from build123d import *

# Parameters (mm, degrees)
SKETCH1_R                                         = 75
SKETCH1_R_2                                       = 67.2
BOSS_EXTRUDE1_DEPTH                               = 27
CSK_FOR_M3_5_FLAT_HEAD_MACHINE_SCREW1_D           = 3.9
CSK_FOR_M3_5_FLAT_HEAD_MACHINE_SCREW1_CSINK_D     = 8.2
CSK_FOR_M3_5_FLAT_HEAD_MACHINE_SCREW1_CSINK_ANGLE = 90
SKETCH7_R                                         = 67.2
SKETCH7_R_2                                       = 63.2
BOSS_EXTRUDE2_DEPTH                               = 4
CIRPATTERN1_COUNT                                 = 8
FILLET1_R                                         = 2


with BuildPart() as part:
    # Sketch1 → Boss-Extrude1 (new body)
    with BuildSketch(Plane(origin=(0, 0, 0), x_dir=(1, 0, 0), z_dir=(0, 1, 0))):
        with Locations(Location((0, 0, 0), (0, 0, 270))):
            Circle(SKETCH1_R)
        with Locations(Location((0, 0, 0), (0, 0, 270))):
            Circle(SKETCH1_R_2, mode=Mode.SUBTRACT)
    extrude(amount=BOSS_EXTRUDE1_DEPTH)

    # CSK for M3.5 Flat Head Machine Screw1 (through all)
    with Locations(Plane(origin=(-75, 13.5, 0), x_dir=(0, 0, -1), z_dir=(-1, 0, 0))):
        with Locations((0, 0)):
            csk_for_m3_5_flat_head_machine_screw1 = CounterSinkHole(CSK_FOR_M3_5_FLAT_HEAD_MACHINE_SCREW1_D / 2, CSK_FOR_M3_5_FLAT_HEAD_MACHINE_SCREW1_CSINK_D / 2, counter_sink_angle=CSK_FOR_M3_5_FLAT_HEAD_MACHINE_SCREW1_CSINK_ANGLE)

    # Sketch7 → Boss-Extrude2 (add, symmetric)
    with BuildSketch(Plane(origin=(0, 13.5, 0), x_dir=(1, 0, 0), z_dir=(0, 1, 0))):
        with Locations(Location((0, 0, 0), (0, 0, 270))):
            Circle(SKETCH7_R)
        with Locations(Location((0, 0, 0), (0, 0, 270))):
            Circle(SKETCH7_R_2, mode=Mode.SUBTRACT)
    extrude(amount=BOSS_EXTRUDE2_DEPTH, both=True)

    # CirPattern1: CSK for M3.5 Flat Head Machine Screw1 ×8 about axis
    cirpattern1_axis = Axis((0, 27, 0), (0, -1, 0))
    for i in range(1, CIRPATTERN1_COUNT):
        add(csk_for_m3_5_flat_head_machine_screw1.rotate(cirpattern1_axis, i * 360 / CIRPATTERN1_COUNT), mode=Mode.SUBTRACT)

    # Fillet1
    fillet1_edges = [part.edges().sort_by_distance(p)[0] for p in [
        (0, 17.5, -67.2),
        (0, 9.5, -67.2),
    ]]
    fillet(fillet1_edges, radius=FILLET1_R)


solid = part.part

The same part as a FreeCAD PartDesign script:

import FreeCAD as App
import Part
import Sketcher
Q = App.Units.Quantity


def edges_at(feature, points):
    """Names of the edges that pass closest to the given points."""
    edges = feature.Shape.Edges
    near = lambda p: min(range(len(edges)), key=lambda i: edges[i].distToShape(Part.Vertex(*p))[0])
    return sorted({f"Edge{near(p) + 1}" for p in points})

doc = App.newDocument("Part")
body = doc.addObject("PartDesign::Body", "Body")

# Sketch on XZ plane
sketch1 = doc.addObject("Sketcher::SketchObject", "Sketch")
body.addObject(sketch1)
sketch1.AttachmentSupport = (doc.XZ_Plane, [""])
sketch1.MapMode = "FlatFace"
sketch1.addGeometry([
    Part.Circle(App.Vector(0, 0, 0), App.Vector(0, 0, 1), 75),
    Part.Circle(App.Vector(0, 0, 0), App.Vector(0, 0, 1), 67.2),
], False)
sketch1.addConstraint([
    Sketcher.Constraint("Coincident", 0, 3, -1, 1),
    Sketcher.Constraint("Coincident", 1, 3, -1, 1),
    Sketcher.Constraint("Diameter", 0, Q("150 mm")),
    Sketcher.Constraint("Diameter", 1, Q("134.4 mm")),
])
pad1 = doc.addObject("PartDesign::Pad", "Pad")
body.addObject(pad1)
pad1.Profile = sketch1
pad1.Length = 27
pad1.Reversed = True

# Sketch on YZ plane
sketch2 = doc.addObject("Sketcher::SketchObject", "Sketch001")
body.addObject(sketch2)
sketch2.AttachmentSupport = (doc.YZ_Plane, [""])
sketch2.MapMode = "FlatFace"
sketch2.AttachmentOffset = App.Placement(App.Vector(0, 0, -75), App.Rotation())
sketch2.addGeometry(Part.Circle(App.Vector(13.5, 0, 0), App.Vector(0, 0, 1), 1.95), False)
sketch2.addConstraint([
    Sketcher.Constraint("PointOnObject", 0, 3, -1),
    Sketcher.Constraint("Diameter", 0, Q("3.9 mm")),
    Sketcher.Constraint("DistanceX", -1, 1, 0, 3, Q("13.5 mm")),
])
doc.recompute()
hole = doc.addObject("PartDesign::Hole", "Hole")
body.addObject(hole)
hole.Profile = sketch2
hole.ThreadType = "None"
hole.Diameter = 3.9
hole.DepthType = "ThroughAll"
hole.HoleCutType = "Countersink"
hole.HoleCutDiameter = 8.2
hole.HoleCutCountersinkAngle = 90
hole.Reversed = True

# Sketch on XZ plane
sketch3 = doc.addObject("Sketcher::SketchObject", "Sketch002")
body.addObject(sketch3)
sketch3.AttachmentSupport = (doc.XZ_Plane, [""])
sketch3.MapMode = "FlatFace"
sketch3.AttachmentOffset = App.Placement(App.Vector(0, 0, -13.5), App.Rotation())
sketch3.addGeometry([
    Part.Circle(App.Vector(0, 0, 0), App.Vector(0, 0, 1), 67.2),
    Part.Circle(App.Vector(0, 0, 0), App.Vector(0, 0, 1), 63.2),
], False)
sketch3.addConstraint([
    Sketcher.Constraint("Coincident", 0, 3, -1, 1),
    Sketcher.Constraint("Coincident", 1, 3, -1, 1),
    Sketcher.Constraint("Diameter", 0, Q("134.4 mm")),
    Sketcher.Constraint("Diameter", 1, Q("126.4 mm")),
])
pad2 = doc.addObject("PartDesign::Pad", "Pad001")
body.addObject(pad2)
pad2.Profile = sketch3
pad2.Length = 8
pad2.Midplane = True
doc.recompute()

polarpattern = doc.addObject("PartDesign::PolarPattern", "PolarPattern")
body.addObject(polarpattern)
polarpattern.Originals = [hole]
polarpattern.Axis = (doc.Y_Axis, [""])
polarpattern.Angle = 360
polarpattern.Occurrences = 8
body.Tip = polarpattern
doc.recompute()

fillet = doc.addObject("PartDesign::Fillet", "Fillet")
body.addObject(fillet)
fillet.Base = (polarpattern, edges_at(polarpattern, [(0, 17.5, -67.2), (0, 9.5, -67.2)]))
fillet.Radius = 2

doc.recompute()
